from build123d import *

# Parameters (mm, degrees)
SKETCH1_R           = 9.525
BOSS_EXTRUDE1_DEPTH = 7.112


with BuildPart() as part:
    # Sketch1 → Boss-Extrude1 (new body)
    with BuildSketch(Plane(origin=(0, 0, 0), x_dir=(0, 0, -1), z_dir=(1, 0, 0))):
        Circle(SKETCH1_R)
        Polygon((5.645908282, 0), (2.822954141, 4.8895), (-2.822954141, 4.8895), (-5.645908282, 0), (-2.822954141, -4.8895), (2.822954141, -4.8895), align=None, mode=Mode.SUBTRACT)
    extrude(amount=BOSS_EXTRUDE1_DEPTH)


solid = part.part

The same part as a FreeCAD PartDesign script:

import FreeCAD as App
import Part
import Sketcher
Q = App.Units.Quantity


def add_polygon(sketch, points):
    """Adds a closed chain of lines whose ends are joined by coincident constraints."""
    first, n = sketch.GeometryCount, len(points)
    for a, b in zip(points, points[1:] + points[:1]):
        sketch.addGeometry(Part.LineSegment(App.Vector(*a, 0), App.Vector(*b, 0)), False)
    for i in range(n):
        sketch.addConstraint(Sketcher.Constraint("Coincident", first + i, 2, first + (i + 1) % n, 1))

doc = App.newDocument("Part")
body = doc.addObject("PartDesign::Body", "Body")

# Sketch on YZ plane
sketch1 = body.newObject("Sketcher::SketchObject", "Sketch")
sketch1.AttachmentSupport = (doc.getObject("YZ_Plane"), [""])
sketch1.MapMode = "FlatFace"
sketch1.addGeometry(Part.Circle(App.Vector(0, 0, 0), App.Vector(0, 0, 1), 10), False)  # 0
add_polygon(sketch1, [(5, -3), (0, -6), (-5, -3), (-5, 3), (0, 6), (5, 3)])  # lines 1-6
sketch1.addConstraint(Sketcher.Constraint("Vertical", 3))
sketch1.addConstraint(Sketcher.Constraint("Vertical", 6))
sketch1.addConstraint(Sketcher.Constraint("Coincident", 0, 3, -1, 1))
sketch1.addConstraint(Sketcher.Constraint("Symmetric", 1, 2, 4, 2, -1, 1))
sketch1.addConstraint(Sketcher.Constraint("Symmetric", 2, 2, 5, 2, -1, 1))
sketch1.addConstraint(Sketcher.Constraint("PointOnObject", 1, 2, -2))
sketch1.addConstraint(Sketcher.Constraint("Parallel", 1, 4))
sketch1.addConstraint(Sketcher.Constraint("Horizontal", 3, 2, 5, 2))
sketch1.addConstraint(Sketcher.Constraint("Diameter", 0, Q("0.75 in")))
sketch1.addConstraint(Sketcher.Constraint("Angle", 1, Q("-150 deg")))
sketch1.addConstraint(Sketcher.Constraint("DistanceX", 3, 2, 5, 2, Q("0.385 in")))
sketch1.addConstraint(Sketcher.Constraint("DistanceY", 3, 1, 3, 2, 5.645908))
pad1 = body.newObject("PartDesign::Pad", "Pad")
pad1.Profile = sketch1
pad1.Length = Q("0.28 in")

doc.recompute()
